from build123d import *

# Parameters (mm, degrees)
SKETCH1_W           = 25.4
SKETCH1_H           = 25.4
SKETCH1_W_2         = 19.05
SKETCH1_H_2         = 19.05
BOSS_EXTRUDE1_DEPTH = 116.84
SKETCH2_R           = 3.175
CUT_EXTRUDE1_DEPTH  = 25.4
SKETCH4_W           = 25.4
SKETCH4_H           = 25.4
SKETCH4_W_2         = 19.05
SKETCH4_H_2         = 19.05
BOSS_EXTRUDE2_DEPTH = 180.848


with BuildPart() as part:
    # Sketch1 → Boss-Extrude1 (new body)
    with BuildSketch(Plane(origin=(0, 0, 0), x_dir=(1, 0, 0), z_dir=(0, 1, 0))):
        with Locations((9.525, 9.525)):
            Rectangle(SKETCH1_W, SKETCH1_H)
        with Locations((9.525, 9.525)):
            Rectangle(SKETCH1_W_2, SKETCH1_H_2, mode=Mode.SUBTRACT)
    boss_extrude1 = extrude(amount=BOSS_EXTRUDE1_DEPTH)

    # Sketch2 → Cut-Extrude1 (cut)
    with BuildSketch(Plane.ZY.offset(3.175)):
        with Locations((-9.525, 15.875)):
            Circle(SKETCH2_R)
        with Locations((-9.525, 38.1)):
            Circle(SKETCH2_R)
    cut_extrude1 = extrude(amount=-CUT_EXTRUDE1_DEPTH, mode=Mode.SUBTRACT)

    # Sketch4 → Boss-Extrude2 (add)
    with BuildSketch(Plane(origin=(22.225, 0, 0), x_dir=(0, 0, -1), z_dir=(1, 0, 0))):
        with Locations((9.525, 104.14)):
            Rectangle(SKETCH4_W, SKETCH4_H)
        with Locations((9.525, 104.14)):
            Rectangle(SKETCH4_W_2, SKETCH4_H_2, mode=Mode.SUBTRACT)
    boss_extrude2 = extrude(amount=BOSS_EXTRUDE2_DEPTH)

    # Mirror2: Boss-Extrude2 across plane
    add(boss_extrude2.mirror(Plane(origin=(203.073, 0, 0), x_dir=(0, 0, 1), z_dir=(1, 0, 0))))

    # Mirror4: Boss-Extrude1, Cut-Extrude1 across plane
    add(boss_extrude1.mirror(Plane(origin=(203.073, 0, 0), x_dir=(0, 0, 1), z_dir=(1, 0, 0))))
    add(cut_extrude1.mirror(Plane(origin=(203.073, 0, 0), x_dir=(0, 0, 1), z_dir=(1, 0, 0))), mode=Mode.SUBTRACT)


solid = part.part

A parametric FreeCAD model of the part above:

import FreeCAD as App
import Part
import Sketcher
Q = App.Units.Quantity

doc = App.newDocument("Part")
params = doc.addObject("Spreadsheet::Sheet", "Params")
for row, (alias, value) in enumerate([
    ("sketch1_width", "1 in"),
    ("sketch1_width2", "0.75 in"),
    ("pad1_length", "4.6 in"),
    ("sketch2_diameter", "0.25 in"),
    ("pocket1_length", "1 in"),
    ("sketch3_width", "1 in"),
    ("sketch3_width2", "0.75 in"),
    ("pad2_length", "7.12 in"),
], start=1):
    params.set(f"A{row}", alias)
    params.set(f"B{row}", "=" + value)
    params.setAlias(f"B{row}", alias)

body = doc.addObject("PartDesign::Body", "Body")

# Sketch on XZ plane
sketch1 = body.newObject("Sketcher::SketchObject", "Sketch")
sketch1.AttachmentSupport = (doc.getObject("XZ_Plane"), [""])
sketch1.MapMode = "FlatFace"
sketch1.addGeometry(Part.LineSegment(App.Vector(-3, -22, 0), App.Vector(-3, 3, 0)), False)
sketch1.addGeometry(Part.LineSegment(App.Vector(-3, 3, 0), App.Vector(22, 3, 0)), False)
sketch1.addGeometry(Part.LineSegment(App.Vector(22, 3, 0), App.Vector(22, -22, 0)), False)
sketch1.addGeometry(Part.LineSegment(App.Vector(22, -22, 0), App.Vector(-3, -22, 0)), False)
sketch1.addGeometry(Part.LineSegment(App.Vector(19, 0, 0), App.Vector(0, 0, 0)), False)
sketch1.addGeometry(Part.LineSegment(App.Vector(0, 0, 0), App.Vector(0, -19, 0)), False)
sketch1.addGeometry(Part.LineSegment(App.Vector(0, -19, 0), App.Vector(19, -19, 0)), False)
sketch1.addGeometry(Part.LineSegment(App.Vector(19, -19, 0), App.Vector(19, 0, 0)), False)
sketch1.addConstraint(Sketcher.Constraint("Coincident", 0, 2, 1, 1))
sketch1.addConstraint(Sketcher.Constraint("Coincident", 1, 2, 2, 1))
sketch1.addConstraint(Sketcher.Constraint("Coincident", 2, 2, 3, 1))
sketch1.addConstraint(Sketcher.Constraint("Coincident", 3, 2, 0, 1))
sketch1.addConstraint(Sketcher.Constraint("Coincident", 4, 2, 5, 1))
sketch1.addConstraint(Sketcher.Constraint("Coincident", 5, 2, 6, 1))
sketch1.addConstraint(Sketcher.Constraint("Coincident", 6, 2, 7, 1))
sketch1.addConstraint(Sketcher.Constraint("Coincident", 7, 2, 4, 1))
sketch1.addConstraint(Sketcher.Constraint("Vertical", 0))
sketch1.addConstraint(Sketcher.Constraint("Horizontal", 1))
sketch1.addConstraint(Sketcher.Constraint("Vertical", 2))
sketch1.addConstraint(Sketcher.Constraint("Horizontal", 3))
sketch1.addConstraint(Sketcher.Constraint("Horizontal", 4))
sketch1.addConstraint(Sketcher.Constraint("Vertical", 5))
sketch1.addConstraint(Sketcher.Constraint("Horizontal", 6))
sketch1.addConstraint(Sketcher.Constraint("Vertical", 7))
sketch1.addConstraint(Sketcher.Constraint("Coincident", 4, 2, -1, 1))
sketch1.addConstraint(Sketcher.Constraint("Equal", 3, 0))
sketch1.addConstraint(Sketcher.Constraint("Equal", 6, 5))
sketch1.addConstraint(Sketcher.Constraint("DistanceX", 1, 1, 1, 2, Q("1 in")))
sketch1.addConstraint(Sketcher.Constraint("DistanceX", 4, 2, 4, 1, Q("0.75 in")))
sketch1.addConstraint(Sketcher.Constraint("DistanceX", 0, 2, -1, 1, Q("0.125 in")))
sketch1.addConstraint(Sketcher.Constraint("DistanceY", -1, 1, 0, 2, Q("0.125 in")))
sketch1.setExpression("Constraints[19]", "Params.sketch1_width")
sketch1.setExpression("Constraints[20]", "Params.sketch1_width2")
pad1 = body.newObject("PartDesign::Pad", "Pad")
pad1.Profile = sketch1
pad1.setExpression("Length", "Params.pad1_length")
pad1.Reversed = True

# Sketch on YZ plane
sketch2 = body.newObject("Sketcher::SketchObject", "Sketch001")
sketch2.AttachmentSupport = (doc.getObject("YZ_Plane"), [""])
sketch2.MapMode = "FlatFace"
sketch2.AttachmentOffset = App.Placement(App.Vector(0, 0, -0.125 * 25.4), App.Rotation())
sketch2.addGeometry(Part.Circle(App.Vector(15.9, -9.5, 0), App.Vector(0, 0, 1), 3.2), False)
sketch2.addGeometry(Part.Circle(App.Vector(38.1, -9.5, 0), App.Vector(0, 0, 1), 3.2), False)
sketch2.addConstraint(Sketcher.Constraint("Equal", 0, 1))
sketch2.addConstraint(Sketcher.Constraint("Horizontal", 0, 3, 1, 3))
sketch2.addConstraint(Sketcher.Constraint("Diameter", 0, Q("0.25 in")))
sketch2.addConstraint(Sketcher.Constraint("DistanceX", -1, 1, 1, 3, Q("1.5 in")))
sketch2.addConstraint(Sketcher.Constraint("DistanceX", -1, 1, 0, 3, Q("0.625 in")))
sketch2.addConstraint(Sketcher.Constraint("DistanceY", 0, 3, -1, 1, Q("0.375 in")))
sketch2.setExpression("Constraints[2]", "Params.sketch2_diameter")
pocket1 = body.newObject("PartDesign::Pocket", "Pocket")
pocket1.Profile = sketch2
pocket1.setExpression("Length", "Params.pocket1_length")
pocket1.Reversed = True

# Sketch on YZ plane
sketch3 = body.newObject("Sketcher::SketchObject", "Sketch002")
sketch3.AttachmentSupport = (doc.getObject("YZ_Plane"), [""])
sketch3.MapMode = "FlatFace"
sketch3.AttachmentOffset = App.Placement(App.Vector(0, 0, 0.875 * 25.4), App.Rotation())
sketch3.addGeometry(Part.LineSegment(App.Vector(117, 3, 0), App.Vector(91, 3, 0)), False)
sketch3.addGeometry(Part.LineSegment(App.Vector(91, 3, 0), App.Vector(91, -22, 0)), False)
sketch3.addGeometry(Part.LineSegment(App.Vector(91, -22, 0), App.Vector(117, -22, 0)), False)
sketch3.addGeometry(Part.LineSegment(App.Vector(117, -22, 0), App.Vector(117, 3, 0)), False)
sketch3.addGeometry(Part.LineSegment(App.Vector(95, -19, 0), App.Vector(95, 0, 0)), False)
sketch3.addGeometry(Part.LineSegment(App.Vector(95, 0, 0), App.Vector(114, 0, 0)), False)
sketch3.addGeometry(Part.LineSegment(App.Vector(114, 0, 0), App.Vector(114, -19, 0)), False)
sketch3.addGeometry(Part.LineSegment(App.Vector(114, -19, 0), App.Vector(95, -19, 0)), False)
sketch3.addConstraint(Sketcher.Constraint("Coincident", 0, 2, 1, 1))
sketch3.addConstraint(Sketcher.Constraint("Coincident", 1, 2, 2, 1))
sketch3.addConstraint(Sketcher.Constraint("Coincident", 2, 2, 3, 1))
sketch3.addConstraint(Sketcher.Constraint("Coincident", 3, 2, 0, 1))
sketch3.addConstraint(Sketcher.Constraint("Coincident", 4, 2, 5, 1))
sketch3.addConstraint(Sketcher.Constraint("Coincident", 5, 2, 6, 1))
sketch3.addConstraint(Sketcher.Constraint("Coincident", 6, 2, 7, 1))
sketch3.addConstraint(Sketcher.Constraint("Coincident", 7, 2, 4, 1))
sketch3.addConstraint(Sketcher.Constraint("Horizontal", 0))
sketch3.addConstraint(Sketcher.Constraint("Vertical", 1))
sketch3.addConstraint(Sketcher.Constraint("Horizontal", 2))
sketch3.addConstraint(Sketcher.Constraint("Vertical", 3))
sketch3.addConstraint(Sketcher.Constraint("Vertical", 4))
sketch3.addConstraint(Sketcher.Constraint("Horizontal", 5))
sketch3.addConstraint(Sketcher.Constraint("Vertical", 6))
sketch3.addConstraint(Sketcher.Constraint("Horizontal", 7))
sketch3.addConstraint(Sketcher.Constraint("PointOnObject", 4, 2, -1))
sketch3.addConstraint(Sketcher.Constraint("Equal", 2, 1))
sketch3.addConstraint(Sketcher.Constraint("Equal", 7, 4))
sketch3.addConstraint(Sketcher.Constraint("DistanceX", 0, 2, 0, 1, Q("1 in")))
sketch3.addConstraint(Sketcher.Constraint("DistanceX", 5, 1, 5, 2, Q("0.75 in")))
sketch3.addConstraint(Sketcher.Constraint("DistanceX", -1, 1, 0, 2, Q("3.6 in")))
sketch3.addConstraint(Sketcher.Constraint("DistanceY", -1, 1, 0, 2, Q("0.125 in")))
sketch3.addConstraint(Sketcher.Constraint("DistanceX", -1, 1, 4, 2, Q("3.725 in")))
sketch3.setExpression("Constraints[19]", "Params.sketch3_width")
sketch3.setExpression("Constraints[20]", "Params.sketch3_width2")
pad2 = body.newObject("PartDesign::Pad", "Pad001")
pad2.Profile = sketch3
pad2.setExpression("Length", "Params.pad2_length")
doc.recompute()

datumplane = body.newObject("PartDesign::Plane", "DatumPlane")
datumplane.AttachmentSupport = (doc.getObject("YZ_Plane"), [""])
datumplane.MapMode = "FlatFace"
datumplane.AttachmentOffset = App.Placement(App.Vector(0, 0, 7.995 * 25.4), App.Rotation())
mirrored = body.newObject("PartDesign::Mirrored", "Mirrored")
mirrored.Originals = [pad2]
mirrored.MirrorPlane = (datumplane, [""])
body.Tip = mirrored
doc.recompute()

datumplane2 = body.newObject("PartDesign::Plane", "DatumPlane001")
datumplane2.AttachmentSupport = (doc.getObject("YZ_Plane"), [""])
datumplane2.MapMode = "FlatFace"
datumplane2.AttachmentOffset = App.Placement(App.Vector(0, 0, 7.995 * 25.4), App.Rotation())
mirrored2 = body.newObject("PartDesign::Mirrored", "Mirrored001")
mirrored2.Originals = [pad1, pocket1]
mirrored2.MirrorPlane = (datumplane2, [""])
body.Tip = mirrored2

doc.recompute()
